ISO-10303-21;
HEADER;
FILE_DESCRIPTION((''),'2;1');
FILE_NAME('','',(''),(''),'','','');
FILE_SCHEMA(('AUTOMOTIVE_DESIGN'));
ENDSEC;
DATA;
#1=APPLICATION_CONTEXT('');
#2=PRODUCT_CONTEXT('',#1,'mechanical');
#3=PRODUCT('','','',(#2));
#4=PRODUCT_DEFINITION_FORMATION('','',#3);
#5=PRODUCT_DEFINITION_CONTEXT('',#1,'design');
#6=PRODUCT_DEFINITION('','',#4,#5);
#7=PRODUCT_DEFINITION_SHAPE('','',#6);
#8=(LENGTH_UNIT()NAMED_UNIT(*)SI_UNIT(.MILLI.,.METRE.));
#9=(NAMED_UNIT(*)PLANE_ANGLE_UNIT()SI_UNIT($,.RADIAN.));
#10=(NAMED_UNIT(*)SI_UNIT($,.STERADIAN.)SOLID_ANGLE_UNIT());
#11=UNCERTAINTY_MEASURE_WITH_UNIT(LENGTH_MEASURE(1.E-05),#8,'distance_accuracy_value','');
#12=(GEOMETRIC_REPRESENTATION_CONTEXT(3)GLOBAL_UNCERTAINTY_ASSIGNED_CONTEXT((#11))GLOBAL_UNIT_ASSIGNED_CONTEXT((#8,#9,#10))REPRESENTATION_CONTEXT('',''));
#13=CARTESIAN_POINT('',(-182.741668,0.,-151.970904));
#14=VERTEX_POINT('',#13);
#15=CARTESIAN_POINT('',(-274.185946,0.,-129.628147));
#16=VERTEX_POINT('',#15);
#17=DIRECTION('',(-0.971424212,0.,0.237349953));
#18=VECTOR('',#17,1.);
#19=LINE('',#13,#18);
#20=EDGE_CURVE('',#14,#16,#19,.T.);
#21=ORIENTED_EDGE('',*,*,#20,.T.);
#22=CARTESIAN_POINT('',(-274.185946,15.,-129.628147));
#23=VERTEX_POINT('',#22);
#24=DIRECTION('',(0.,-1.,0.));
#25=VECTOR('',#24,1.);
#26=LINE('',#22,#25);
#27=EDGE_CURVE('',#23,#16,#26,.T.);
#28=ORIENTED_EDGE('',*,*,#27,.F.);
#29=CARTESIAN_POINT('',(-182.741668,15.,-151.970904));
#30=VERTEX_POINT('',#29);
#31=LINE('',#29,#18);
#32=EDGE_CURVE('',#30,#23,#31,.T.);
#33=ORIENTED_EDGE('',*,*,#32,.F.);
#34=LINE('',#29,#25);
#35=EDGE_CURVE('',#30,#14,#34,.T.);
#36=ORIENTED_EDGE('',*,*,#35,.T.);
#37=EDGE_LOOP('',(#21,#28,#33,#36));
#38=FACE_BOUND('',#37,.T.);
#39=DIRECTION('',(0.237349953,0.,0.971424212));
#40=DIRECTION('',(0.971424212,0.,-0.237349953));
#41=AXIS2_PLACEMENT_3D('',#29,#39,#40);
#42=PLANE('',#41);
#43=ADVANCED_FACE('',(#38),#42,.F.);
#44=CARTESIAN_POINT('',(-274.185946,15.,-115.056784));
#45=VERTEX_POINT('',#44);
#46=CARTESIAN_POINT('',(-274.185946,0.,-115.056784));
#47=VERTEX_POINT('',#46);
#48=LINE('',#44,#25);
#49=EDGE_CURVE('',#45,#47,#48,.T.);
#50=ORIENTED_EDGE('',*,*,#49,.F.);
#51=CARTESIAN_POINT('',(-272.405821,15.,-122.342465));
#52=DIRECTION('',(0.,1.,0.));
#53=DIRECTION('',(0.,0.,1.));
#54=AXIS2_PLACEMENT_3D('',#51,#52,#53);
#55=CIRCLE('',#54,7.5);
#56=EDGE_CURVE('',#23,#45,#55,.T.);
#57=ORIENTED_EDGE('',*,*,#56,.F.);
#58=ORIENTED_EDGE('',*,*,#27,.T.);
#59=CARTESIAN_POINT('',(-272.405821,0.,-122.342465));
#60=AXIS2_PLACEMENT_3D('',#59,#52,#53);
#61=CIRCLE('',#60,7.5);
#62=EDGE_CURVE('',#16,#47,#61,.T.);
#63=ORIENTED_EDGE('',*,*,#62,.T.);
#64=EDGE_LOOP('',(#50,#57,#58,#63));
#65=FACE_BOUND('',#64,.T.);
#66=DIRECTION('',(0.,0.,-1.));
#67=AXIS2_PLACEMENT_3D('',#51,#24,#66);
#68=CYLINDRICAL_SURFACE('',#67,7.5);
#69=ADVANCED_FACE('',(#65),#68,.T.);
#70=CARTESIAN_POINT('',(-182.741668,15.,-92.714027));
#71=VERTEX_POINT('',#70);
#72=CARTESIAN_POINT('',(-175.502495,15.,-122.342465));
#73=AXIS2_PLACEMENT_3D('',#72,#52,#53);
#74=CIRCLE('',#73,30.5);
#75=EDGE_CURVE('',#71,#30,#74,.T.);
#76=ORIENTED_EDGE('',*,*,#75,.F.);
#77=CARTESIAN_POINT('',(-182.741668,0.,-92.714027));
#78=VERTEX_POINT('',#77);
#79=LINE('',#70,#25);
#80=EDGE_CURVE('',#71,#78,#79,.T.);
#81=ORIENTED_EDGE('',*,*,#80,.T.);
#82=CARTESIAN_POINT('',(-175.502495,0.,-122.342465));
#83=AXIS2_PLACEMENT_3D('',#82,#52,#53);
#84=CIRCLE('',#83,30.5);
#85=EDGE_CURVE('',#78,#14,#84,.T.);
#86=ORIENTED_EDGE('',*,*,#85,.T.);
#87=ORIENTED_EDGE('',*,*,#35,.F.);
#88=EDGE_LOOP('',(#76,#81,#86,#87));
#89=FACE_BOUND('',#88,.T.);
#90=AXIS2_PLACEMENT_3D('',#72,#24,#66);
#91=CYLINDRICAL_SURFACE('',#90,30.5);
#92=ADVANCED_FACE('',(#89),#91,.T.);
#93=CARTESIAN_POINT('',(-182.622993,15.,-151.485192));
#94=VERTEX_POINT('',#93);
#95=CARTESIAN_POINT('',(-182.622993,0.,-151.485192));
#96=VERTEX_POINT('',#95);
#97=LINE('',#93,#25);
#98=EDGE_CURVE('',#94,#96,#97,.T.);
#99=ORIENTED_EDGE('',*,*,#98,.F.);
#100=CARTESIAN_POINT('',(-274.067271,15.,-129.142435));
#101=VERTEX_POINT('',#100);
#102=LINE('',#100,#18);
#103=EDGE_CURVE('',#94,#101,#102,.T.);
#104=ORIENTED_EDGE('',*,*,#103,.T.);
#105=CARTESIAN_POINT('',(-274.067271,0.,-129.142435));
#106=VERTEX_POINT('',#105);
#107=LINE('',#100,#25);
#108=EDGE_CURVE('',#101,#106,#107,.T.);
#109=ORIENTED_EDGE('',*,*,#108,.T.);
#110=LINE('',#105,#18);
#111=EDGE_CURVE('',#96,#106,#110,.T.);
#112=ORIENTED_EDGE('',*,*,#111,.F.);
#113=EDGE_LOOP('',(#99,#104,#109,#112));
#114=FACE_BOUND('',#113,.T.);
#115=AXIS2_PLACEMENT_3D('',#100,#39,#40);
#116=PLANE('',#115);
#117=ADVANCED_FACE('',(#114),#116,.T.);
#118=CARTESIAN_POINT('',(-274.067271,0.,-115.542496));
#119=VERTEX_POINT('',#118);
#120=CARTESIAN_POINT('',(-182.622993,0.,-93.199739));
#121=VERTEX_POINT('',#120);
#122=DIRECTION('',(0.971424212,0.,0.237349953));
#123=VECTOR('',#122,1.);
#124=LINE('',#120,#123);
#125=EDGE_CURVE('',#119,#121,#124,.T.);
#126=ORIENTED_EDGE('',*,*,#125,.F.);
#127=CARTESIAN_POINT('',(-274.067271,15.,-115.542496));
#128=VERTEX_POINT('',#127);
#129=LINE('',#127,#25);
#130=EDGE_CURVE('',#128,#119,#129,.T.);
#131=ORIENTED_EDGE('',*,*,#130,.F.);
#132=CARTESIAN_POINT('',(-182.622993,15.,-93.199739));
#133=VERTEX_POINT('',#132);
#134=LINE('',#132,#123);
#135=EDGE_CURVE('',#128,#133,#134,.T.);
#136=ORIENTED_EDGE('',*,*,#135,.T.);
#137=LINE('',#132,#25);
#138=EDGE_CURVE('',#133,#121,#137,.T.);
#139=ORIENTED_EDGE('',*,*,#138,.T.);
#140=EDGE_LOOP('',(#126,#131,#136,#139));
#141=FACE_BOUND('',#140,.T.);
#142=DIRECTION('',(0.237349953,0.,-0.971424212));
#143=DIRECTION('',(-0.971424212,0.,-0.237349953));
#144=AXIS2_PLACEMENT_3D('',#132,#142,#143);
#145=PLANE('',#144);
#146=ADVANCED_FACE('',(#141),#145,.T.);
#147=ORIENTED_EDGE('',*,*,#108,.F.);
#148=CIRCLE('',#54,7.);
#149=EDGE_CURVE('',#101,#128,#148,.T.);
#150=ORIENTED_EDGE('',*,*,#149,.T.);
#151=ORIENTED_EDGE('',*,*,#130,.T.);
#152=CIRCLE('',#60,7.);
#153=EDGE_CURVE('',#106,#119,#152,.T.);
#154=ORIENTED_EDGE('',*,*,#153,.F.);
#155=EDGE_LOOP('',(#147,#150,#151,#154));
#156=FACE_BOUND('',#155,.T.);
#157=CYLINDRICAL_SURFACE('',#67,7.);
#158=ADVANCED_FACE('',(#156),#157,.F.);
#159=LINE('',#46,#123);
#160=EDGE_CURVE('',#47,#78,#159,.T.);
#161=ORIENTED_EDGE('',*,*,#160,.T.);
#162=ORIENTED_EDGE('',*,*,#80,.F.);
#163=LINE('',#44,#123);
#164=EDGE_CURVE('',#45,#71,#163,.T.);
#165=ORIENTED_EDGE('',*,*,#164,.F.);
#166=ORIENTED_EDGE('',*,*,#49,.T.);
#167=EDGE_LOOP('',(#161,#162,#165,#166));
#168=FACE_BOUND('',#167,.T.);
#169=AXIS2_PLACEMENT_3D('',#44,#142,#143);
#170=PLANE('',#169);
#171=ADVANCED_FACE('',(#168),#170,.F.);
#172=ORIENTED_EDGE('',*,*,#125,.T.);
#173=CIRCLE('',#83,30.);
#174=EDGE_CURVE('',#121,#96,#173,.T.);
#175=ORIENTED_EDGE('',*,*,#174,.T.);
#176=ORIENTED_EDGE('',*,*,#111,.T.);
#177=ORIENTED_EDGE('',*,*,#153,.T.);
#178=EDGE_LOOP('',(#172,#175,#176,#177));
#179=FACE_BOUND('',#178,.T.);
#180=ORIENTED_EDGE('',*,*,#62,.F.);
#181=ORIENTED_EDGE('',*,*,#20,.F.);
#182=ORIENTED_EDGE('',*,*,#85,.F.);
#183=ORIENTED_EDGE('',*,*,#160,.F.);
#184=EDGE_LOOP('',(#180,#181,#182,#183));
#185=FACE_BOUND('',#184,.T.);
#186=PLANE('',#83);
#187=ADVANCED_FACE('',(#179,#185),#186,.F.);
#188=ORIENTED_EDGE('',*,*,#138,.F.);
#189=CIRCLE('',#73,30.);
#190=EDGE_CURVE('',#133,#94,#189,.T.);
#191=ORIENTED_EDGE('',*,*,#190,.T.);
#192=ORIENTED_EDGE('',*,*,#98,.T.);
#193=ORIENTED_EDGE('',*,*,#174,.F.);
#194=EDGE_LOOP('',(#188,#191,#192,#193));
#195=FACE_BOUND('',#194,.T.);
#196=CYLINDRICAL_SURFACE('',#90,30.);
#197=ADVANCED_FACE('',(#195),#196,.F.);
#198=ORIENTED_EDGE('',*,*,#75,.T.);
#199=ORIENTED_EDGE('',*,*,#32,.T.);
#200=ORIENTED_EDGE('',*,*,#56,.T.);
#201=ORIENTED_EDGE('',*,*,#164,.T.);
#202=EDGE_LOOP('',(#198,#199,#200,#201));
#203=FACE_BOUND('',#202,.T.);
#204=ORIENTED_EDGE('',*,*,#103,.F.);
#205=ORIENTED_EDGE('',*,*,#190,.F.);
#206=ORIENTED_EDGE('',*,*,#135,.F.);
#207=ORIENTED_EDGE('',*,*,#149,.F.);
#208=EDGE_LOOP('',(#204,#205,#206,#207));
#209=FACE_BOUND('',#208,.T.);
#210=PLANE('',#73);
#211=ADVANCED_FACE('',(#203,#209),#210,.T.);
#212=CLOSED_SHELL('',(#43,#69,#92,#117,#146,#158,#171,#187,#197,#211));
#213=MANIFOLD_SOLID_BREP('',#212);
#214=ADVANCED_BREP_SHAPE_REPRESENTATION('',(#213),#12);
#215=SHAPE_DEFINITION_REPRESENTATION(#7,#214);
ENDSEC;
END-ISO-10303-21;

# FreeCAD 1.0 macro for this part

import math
import FreeCAD as App
import Part
import Sketcher

V = App.Vector
Q = App.Units.Quantity

doc = App.newDocument("Part")
params = doc.addObject("Spreadsheet::Sheet", "Params")
for row, (alias, value) in enumerate([
    ("sketch1_radius", "7 mm"),
    ("sketch1_radius2", "30 mm"),
    ("sketch1_radius3", "7.5 mm"),
    ("pad1_length", "15 mm"),
], start=1):
    params.set(f"A{row}", alias)
    params.set(f"B{row}", "=" + value)
    params.setAlias(f"B{row}", alias)

body = doc.addObject("PartDesign::Body", "Body")

sketch1 = body.newObject("Sketcher::SketchObject", "Sketch")
sketch1.AttachmentSupport = (doc.getObject("XZ_Plane"), [""])
sketch1.MapMode = "FlatFace"
sketch1.addGeometry([
    Part.LineSegment(V(-182.741668, -151.970904, 0), V(-274.185946, -129.628147, 0)),
    Part.ArcOfCircle(Part.Circle(V(-272.405821, -122.342465, 0), V(0, 0, 1), 7.5), math.radians(103.730185), math.radians(256.269815)),
    Part.LineSegment(V(-274.185946, -115.056784, 0), V(-182.741668, -92.714027, 0)),
    Part.ArcOfCircle(Part.Circle(V(-175.502495, -122.342465, 0), V(0, 0, 1), 30.5), math.radians(-103.730185), math.radians(103.730185)),
    Part.ArcOfCircle(Part.Circle(V(-272.405821, -122.342465, 0), V(0, 0, 1), 7), math.radians(103.730185), math.radians(256.269815)),
    Part.LineSegment(V(-274.067271, -129.142435, 0), V(-182.622993, -151.485192, 0)),
    Part.ArcOfCircle(Part.Circle(V(-175.502495, -122.342465, 0), V(0, 0, 1), 30), math.radians(-103.730185), math.radians(103.730185)),
    Part.LineSegment(V(-182.622993, -93.199739, 0), V(-274.067271, -115.542496, 0)),
], False)
sketch1.addConstraint([
    Sketcher.Constraint("Tangent", 0, 2, 1, 2),
    Sketcher.Constraint("Tangent", 1, 1, 2, 1),
    Sketcher.Constraint("Tangent", 2, 2, 3, 2),
    Sketcher.Constraint("Tangent", 3, 1, 0, 1),
    Sketcher.Constraint("Tangent", 4, 2, 5, 1),
    Sketcher.Constraint("Tangent", 5, 2, 6, 1),
    Sketcher.Constraint("Tangent", 6, 2, 7, 1),
    Sketcher.Constraint("Tangent", 7, 2, 4, 1),
    Sketcher.Constraint("Coincident", 4, 3, 1, 3),
    Sketcher.Constraint("Coincident", 6, 3, 3, 3),
    Sketcher.Constraint("Parallel", 0, 5),
    Sketcher.Constraint("Horizontal", 1, 3, 3, 3),
    Sketcher.Constraint("Radius", 4, Q("7 mm")),
    Sketcher.Constraint("Radius", 6, Q("30 mm")),
    Sketcher.Constraint("Radius", 1, Q("7.5 mm")),
    Sketcher.Constraint("DistanceX", 5, 2, 3, 3, Q("7.120499 mm")),
    Sketcher.Constraint("DistanceX", 1, 3, -1, 1, Q("272.405821 mm")),
    Sketcher.Constraint("DistanceY", 5, 2, -1, 1, Q("151.485192 mm")),
])
sketch1.setExpression("Constraints[12]", "Params.sketch1_radius")
sketch1.setExpression("Constraints[13]", "Params.sketch1_radius2")
sketch1.setExpression("Constraints[14]", "Params.sketch1_radius3")
pad1 = body.newObject("PartDesign::Pad", "Pad")
pad1.Profile = sketch1
pad1.setExpression("Length", "Params.pad1_length")
pad1.Reversed = True

doc.recompute()
